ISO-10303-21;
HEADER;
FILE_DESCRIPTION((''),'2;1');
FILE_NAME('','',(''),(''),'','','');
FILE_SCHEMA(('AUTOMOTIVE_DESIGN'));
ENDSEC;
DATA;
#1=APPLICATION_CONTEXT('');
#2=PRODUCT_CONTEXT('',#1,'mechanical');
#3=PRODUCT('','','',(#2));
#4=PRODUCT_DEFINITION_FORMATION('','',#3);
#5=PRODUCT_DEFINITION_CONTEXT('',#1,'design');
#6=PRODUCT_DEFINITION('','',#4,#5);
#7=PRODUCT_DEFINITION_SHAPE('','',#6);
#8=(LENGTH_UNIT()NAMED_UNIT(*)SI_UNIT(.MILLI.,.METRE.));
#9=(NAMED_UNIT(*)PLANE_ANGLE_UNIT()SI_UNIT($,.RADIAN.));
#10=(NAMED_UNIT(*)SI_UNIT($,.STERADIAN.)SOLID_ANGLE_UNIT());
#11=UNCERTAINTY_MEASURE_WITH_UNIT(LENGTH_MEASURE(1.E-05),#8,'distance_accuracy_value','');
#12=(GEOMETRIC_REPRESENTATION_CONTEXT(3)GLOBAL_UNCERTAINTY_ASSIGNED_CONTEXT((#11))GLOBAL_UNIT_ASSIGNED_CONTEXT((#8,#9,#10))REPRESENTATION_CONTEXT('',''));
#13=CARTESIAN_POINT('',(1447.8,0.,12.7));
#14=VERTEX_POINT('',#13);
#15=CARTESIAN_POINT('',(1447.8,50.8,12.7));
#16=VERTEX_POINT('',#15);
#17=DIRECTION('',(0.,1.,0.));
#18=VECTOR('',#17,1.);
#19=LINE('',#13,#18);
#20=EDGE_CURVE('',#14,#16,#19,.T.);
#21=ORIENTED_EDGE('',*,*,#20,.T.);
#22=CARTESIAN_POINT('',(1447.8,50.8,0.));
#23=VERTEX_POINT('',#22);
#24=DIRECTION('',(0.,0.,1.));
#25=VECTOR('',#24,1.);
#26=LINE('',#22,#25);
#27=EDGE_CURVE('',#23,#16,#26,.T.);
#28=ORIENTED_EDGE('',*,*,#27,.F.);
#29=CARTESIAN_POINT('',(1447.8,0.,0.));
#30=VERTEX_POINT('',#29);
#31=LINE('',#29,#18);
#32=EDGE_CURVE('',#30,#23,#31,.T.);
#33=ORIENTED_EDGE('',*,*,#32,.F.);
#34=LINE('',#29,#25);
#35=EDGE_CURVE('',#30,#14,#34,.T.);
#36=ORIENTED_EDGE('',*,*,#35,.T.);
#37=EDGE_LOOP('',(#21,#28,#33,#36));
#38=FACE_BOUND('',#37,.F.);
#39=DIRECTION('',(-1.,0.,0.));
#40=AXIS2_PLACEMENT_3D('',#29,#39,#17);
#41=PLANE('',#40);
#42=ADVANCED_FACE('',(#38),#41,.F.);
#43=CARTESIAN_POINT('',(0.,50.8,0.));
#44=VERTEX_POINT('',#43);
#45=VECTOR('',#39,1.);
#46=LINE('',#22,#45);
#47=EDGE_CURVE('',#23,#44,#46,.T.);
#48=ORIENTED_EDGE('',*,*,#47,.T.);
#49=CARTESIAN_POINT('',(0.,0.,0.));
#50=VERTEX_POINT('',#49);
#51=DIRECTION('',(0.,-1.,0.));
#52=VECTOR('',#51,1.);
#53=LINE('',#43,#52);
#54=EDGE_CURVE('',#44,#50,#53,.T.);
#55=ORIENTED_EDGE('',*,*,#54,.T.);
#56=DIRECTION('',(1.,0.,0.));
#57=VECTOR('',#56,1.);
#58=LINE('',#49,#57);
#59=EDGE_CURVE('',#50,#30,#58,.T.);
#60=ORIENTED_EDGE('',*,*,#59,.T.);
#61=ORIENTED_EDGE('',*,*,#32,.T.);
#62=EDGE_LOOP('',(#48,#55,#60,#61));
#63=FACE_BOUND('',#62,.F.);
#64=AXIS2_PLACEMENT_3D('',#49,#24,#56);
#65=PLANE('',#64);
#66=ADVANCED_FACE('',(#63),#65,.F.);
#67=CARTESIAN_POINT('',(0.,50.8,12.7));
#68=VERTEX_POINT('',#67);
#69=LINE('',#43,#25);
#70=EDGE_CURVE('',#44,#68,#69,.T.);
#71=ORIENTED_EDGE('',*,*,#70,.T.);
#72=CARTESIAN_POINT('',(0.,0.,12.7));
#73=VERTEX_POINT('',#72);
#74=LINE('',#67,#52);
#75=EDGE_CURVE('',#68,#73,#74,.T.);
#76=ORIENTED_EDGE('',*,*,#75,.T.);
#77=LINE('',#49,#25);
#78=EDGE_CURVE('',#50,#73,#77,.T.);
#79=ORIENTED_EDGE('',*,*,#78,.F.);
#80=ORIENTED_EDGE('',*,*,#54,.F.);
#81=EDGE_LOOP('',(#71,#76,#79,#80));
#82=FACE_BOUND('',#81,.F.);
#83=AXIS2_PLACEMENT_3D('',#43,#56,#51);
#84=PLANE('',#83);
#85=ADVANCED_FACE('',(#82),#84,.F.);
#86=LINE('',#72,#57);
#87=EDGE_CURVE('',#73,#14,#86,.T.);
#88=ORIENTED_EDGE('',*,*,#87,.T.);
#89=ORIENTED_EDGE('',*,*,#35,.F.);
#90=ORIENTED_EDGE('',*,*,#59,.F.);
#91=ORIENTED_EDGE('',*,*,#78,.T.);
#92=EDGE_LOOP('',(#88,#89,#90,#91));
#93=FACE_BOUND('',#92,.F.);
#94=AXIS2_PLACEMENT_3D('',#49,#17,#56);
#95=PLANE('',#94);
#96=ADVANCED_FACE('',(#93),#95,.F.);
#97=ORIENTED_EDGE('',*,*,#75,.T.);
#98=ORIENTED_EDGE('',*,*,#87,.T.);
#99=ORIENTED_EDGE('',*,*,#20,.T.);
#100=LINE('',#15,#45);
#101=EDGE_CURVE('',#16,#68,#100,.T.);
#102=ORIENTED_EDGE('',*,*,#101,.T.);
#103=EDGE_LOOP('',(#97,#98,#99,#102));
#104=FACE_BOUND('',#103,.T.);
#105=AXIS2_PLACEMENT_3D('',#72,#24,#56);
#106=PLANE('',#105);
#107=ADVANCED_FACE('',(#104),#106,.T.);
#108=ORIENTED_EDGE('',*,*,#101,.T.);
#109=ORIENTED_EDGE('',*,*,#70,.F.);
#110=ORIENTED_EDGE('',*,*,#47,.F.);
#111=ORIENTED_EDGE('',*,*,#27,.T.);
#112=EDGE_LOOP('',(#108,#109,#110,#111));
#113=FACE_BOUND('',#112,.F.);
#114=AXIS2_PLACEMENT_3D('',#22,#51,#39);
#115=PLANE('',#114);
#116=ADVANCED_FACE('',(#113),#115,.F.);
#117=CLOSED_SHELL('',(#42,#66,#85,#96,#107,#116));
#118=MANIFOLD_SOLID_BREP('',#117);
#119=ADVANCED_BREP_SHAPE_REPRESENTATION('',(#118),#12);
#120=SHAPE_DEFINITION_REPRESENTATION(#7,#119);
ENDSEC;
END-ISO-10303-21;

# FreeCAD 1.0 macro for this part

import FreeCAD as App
import Part
import Sketcher
from FreeCAD import Vector
Q = App.Units.Quantity

doc = App.newDocument("Part")
params = doc.addObject("Spreadsheet::Sheet", "Params")
for row, (alias, value) in enumerate([
    ("sketch1_width", "57 in"),
    ("sketch1_height", "2 in"),
    ("pad1_length", "0.5 in"),
], start=1):
    params.set(f"A{row}", alias)
    params.set(f"B{row}", "=" + value)
    params.setAlias(f"B{row}", alias)

body = doc.addObject("PartDesign::Body", "Body")

# Sketch on XY plane
sketch1 = doc.addObject("Sketcher::SketchObject", "Sketch")
body.addObject(sketch1)
sketch1.AttachmentSupport = (doc.XY_Plane, [""])
sketch1.MapMode = "FlatFace"
sketch1.addGeometry([
    Part.LineSegment(Vector(0, 51, 0), Vector(0, 0, 0)),
    Part.LineSegment(Vector(0, 0, 0), Vector(1448, 0, 0)),
    Part.LineSegment(Vector(1448, 0, 0), Vector(1448, 51, 0)),
    Part.LineSegment(Vector(1448, 51, 0), Vector(0, 51, 0)),
], False)
sketch1.addConstraint([
    Sketcher.Constraint("Coincident", 0, 2, 1, 1),
    Sketcher.Constraint("Coincident", 1, 2, 2, 1),
    Sketcher.Constraint("Coincident", 2, 2, 3, 1),
    Sketcher.Constraint("Coincident", 3, 2, 0, 1),
    Sketcher.Constraint("Vertical", 0),
    Sketcher.Constraint("Horizontal", 1),
    Sketcher.Constraint("Vertical", 2),
    Sketcher.Constraint("Horizontal", 3),
    Sketcher.Constraint("Coincident", 0, 2, -1, 1),
    Sketcher.Constraint("DistanceX", 1, 1, 1, 2, Q("57 in")),
    Sketcher.Constraint("DistanceY", 0, 2, 0, 1, Q("2 in")),
])
sketch1.setExpression("Constraints[9]", "Params.sketch1_width")
sketch1.setExpression("Constraints[10]", "Params.sketch1_height")
pad1 = doc.addObject("PartDesign::Pad", "Pad")
body.addObject(pad1)
pad1.Profile = sketch1
pad1.setExpression("Length", "Params.pad1_length")

doc.recompute()
